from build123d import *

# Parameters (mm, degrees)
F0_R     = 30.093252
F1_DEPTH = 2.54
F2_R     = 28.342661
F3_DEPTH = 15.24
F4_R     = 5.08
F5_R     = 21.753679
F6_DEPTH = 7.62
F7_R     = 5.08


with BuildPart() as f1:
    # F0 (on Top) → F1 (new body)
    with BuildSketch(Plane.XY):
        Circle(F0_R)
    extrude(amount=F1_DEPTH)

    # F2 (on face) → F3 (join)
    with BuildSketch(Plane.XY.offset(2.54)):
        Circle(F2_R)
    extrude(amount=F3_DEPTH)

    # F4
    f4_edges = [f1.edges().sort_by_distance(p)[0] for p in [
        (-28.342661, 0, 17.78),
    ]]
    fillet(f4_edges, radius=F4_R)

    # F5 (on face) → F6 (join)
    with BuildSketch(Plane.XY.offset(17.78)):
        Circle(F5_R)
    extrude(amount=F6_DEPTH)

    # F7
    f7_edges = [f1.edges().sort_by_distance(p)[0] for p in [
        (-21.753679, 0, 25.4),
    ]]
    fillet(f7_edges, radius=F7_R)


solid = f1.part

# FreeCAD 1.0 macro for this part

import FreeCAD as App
import Part
import Sketcher
from FreeCAD import Vector
Q = App.Units.Quantity


def edges_at(feature, points):
    """Names of the edges that pass closest to the given points."""
    edges = feature.Shape.Edges
    near = lambda p: min(range(len(edges)), key=lambda i: edges[i].distToShape(Part.Vertex(*p))[0])
    return sorted({f"Edge{near(p) + 1}" for p in points})

doc = App.newDocument("Part")
body = doc.addObject("PartDesign::Body", "Body")

# Sketch on XY plane
sketch1 = doc.addObject("Sketcher::SketchObject", "Sketch")
body.addObject(sketch1)
sketch1.AttachmentSupport = (doc.XY_Plane, [""])
sketch1.MapMode = "FlatFace"
sketch1.addGeometry(Part.Circle(Vector(0, 0, 0), Vector(0, 0, 1), 30), False)
sketch1.addConstraint(Sketcher.Constraint("Coincident", 0, 3, -1, 1))
sketch1.addConstraint(Sketcher.Constraint("Diameter", 0, 60.186504))
pad1 = doc.addObject("PartDesign::Pad", "Pad")
body.addObject(pad1)
pad1.Profile = sketch1
pad1.Length = Q("0.1 in")

# Sketch on XY plane
sketch2 = doc.addObject("Sketcher::SketchObject", "Sketch001")
body.addObject(sketch2)
sketch2.AttachmentSupport = (doc.XY_Plane, [""])
sketch2.MapMode = "FlatFace"
sketch2.AttachmentOffset = App.Placement(Vector(0, 0, 0.1 * 25.4), App.Rotation())
sketch2.addGeometry(Part.Circle(Vector(0, 0, 0), Vector(0, 0, 1), 28), False)
sketch2.addConstraint(Sketcher.Constraint("Coincident", 0, 3, -1, 1))
sketch2.addConstraint(Sketcher.Constraint("Diameter", 0, 56.685322))
pad2 = doc.addObject("PartDesign::Pad", "Pad001")
body.addObject(pad2)
pad2.Profile = sketch2
pad2.Length = Q("0.6 in")
doc.recompute()

fillet = doc.addObject("PartDesign::Fillet", "Fillet")
body.addObject(fillet)
fillet.Base = (pad2, edges_at(pad2, [(-28.343, 0, 17.78)]))
fillet.Radius = Q("0.2 in")

# Sketch on XY plane
sketch3 = doc.addObject("Sketcher::SketchObject", "Sketch002")
body.addObject(sketch3)
sketch3.AttachmentSupport = (doc.XY_Plane, [""])
sketch3.MapMode = "FlatFace"
sketch3.AttachmentOffset = App.Placement(Vector(0, 0, 0.7 * 25.4), App.Rotation())
sketch3.addGeometry(Part.Circle(Vector(0, 0, 0), Vector(0, 0, 1), 22), False)
sketch3.addConstraint(Sketcher.Constraint("Coincident", 0, 3, -1, 1))
sketch3.addConstraint(Sketcher.Constraint("Diameter", 0, 43.507358))
pad3 = doc.addObject("PartDesign::Pad", "Pad002")
body.addObject(pad3)
pad3.Profile = sketch3
pad3.Length = Q("0.3 in")
doc.recompute()

fillet2 = doc.addObject("PartDesign::Fillet", "Fillet001")
body.addObject(fillet2)
fillet2.Base = (pad3, edges_at(pad3, [(-21.754, 0, 25.4)]))
fillet2.Radius = Q("0.2 in")

doc.recompute()
